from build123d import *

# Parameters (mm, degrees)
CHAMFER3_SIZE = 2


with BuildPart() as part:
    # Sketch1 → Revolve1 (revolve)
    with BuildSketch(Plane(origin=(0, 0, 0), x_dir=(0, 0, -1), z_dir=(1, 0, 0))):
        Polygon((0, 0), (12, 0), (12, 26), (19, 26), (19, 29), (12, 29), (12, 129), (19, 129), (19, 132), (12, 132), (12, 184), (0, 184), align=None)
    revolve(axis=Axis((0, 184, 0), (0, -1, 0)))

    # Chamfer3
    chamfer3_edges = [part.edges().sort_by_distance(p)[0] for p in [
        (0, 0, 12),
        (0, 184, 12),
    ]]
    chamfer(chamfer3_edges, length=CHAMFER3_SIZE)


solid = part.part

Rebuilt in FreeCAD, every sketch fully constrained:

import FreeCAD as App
import Part
import Sketcher

V = App.Vector


def edges_at(feature, points):
    """Names of the edges that pass closest to the given points."""
    edges = feature.Shape.Edges
    near = lambda p: min(range(len(edges)), key=lambda i: edges[i].distToShape(Part.Vertex(*p))[0])
    return sorted({f"Edge{near(p) + 1}" for p in points})


def add_polygon(sketch, points):
    """Adds a closed chain of lines whose ends are joined by coincident constraints."""
    first, n = sketch.GeometryCount, len(points)
    for a, b in zip(points, points[1:] + points[:1]):
        sketch.addGeometry(Part.LineSegment(App.Vector(*a, 0), App.Vector(*b, 0)), False)
    for i in range(n):
        sketch.addConstraint(Sketcher.Constraint("Coincident", first + i, 2, first + (i + 1) % n, 1))

doc = App.newDocument("Part")
body = doc.addObject("PartDesign::Body", "Body")

# Sketch on YZ plane
sketch1 = body.newObject("Sketcher::SketchObject", "Sketch")
sketch1.AttachmentSupport = (doc.getObject("YZ_Plane"), [""])
sketch1.MapMode = "FlatFace"
add_polygon(sketch1, [(0, 0), (0, -12), (26, -12), (26, -19), (29, -19), (29, -12), (129, -12), (129, -19), (132, -19), (132, -12), (184, -12), (184, 0)])  # lines 0-11
sketch1.addConstraint(Sketcher.Constraint("Vertical", 0))
sketch1.addConstraint(Sketcher.Constraint("Horizontal", 1))
sketch1.addConstraint(Sketcher.Constraint("Vertical", 2))
sketch1.addConstraint(Sketcher.Constraint("Horizontal", 3))
sketch1.addConstraint(Sketcher.Constraint("Vertical", 4))
sketch1.addConstraint(Sketcher.Constraint("Horizontal", 5))
sketch1.addConstraint(Sketcher.Constraint("Vertical", 6))
sketch1.addConstraint(Sketcher.Constraint("Horizontal", 7))
sketch1.addConstraint(Sketcher.Constraint("Vertical", 8))
sketch1.addConstraint(Sketcher.Constraint("Horizontal", 9))
sketch1.addConstraint(Sketcher.Constraint("Vertical", 10))
sketch1.addConstraint(Sketcher.Constraint("Horizontal", 11))
sketch1.addConstraint(Sketcher.Constraint("Coincident", 11, 2, -1, 1))
sketch1.addConstraint(Sketcher.Constraint("Horizontal", 1, 2, 4, 2))
sketch1.addConstraint(Sketcher.Constraint("Horizontal", 3, 2, 6, 2))
sketch1.addConstraint(Sketcher.Constraint("Horizontal", 5, 2, 8, 2))
sketch1.addConstraint(Sketcher.Constraint("Equal", 3, 7))
sketch1.addConstraint(Sketcher.Constraint("DistanceX", 1, 1, 1, 2, 26.0))
sketch1.addConstraint(Sketcher.Constraint("DistanceX", 3, 1, 3, 2, 3.0))
sketch1.addConstraint(Sketcher.Constraint("DistanceX", 5, 1, 5, 2, 100.0))
sketch1.addConstraint(Sketcher.Constraint("DistanceX", 9, 1, 9, 2, 52.0))
sketch1.addConstraint(Sketcher.Constraint("DistanceY", 0, 2, 0, 1, 12.0))
sketch1.addConstraint(Sketcher.Constraint("DistanceY", 2, 2, 2, 1, 7.0))
revolution = body.newObject("PartDesign::Revolution", "Revolution")
revolution.Profile = sketch1
revolution.ReferenceAxis = (sketch1, ["H_Axis"])
revolution.Angle = 360
doc.recompute()

chamfer = body.newObject("PartDesign::Chamfer", "Chamfer")
chamfer.Base = (revolution, edges_at(revolution, [(0, 0, 12), (0, 184, 12)]))
chamfer.Size = 2

doc.recompute()
